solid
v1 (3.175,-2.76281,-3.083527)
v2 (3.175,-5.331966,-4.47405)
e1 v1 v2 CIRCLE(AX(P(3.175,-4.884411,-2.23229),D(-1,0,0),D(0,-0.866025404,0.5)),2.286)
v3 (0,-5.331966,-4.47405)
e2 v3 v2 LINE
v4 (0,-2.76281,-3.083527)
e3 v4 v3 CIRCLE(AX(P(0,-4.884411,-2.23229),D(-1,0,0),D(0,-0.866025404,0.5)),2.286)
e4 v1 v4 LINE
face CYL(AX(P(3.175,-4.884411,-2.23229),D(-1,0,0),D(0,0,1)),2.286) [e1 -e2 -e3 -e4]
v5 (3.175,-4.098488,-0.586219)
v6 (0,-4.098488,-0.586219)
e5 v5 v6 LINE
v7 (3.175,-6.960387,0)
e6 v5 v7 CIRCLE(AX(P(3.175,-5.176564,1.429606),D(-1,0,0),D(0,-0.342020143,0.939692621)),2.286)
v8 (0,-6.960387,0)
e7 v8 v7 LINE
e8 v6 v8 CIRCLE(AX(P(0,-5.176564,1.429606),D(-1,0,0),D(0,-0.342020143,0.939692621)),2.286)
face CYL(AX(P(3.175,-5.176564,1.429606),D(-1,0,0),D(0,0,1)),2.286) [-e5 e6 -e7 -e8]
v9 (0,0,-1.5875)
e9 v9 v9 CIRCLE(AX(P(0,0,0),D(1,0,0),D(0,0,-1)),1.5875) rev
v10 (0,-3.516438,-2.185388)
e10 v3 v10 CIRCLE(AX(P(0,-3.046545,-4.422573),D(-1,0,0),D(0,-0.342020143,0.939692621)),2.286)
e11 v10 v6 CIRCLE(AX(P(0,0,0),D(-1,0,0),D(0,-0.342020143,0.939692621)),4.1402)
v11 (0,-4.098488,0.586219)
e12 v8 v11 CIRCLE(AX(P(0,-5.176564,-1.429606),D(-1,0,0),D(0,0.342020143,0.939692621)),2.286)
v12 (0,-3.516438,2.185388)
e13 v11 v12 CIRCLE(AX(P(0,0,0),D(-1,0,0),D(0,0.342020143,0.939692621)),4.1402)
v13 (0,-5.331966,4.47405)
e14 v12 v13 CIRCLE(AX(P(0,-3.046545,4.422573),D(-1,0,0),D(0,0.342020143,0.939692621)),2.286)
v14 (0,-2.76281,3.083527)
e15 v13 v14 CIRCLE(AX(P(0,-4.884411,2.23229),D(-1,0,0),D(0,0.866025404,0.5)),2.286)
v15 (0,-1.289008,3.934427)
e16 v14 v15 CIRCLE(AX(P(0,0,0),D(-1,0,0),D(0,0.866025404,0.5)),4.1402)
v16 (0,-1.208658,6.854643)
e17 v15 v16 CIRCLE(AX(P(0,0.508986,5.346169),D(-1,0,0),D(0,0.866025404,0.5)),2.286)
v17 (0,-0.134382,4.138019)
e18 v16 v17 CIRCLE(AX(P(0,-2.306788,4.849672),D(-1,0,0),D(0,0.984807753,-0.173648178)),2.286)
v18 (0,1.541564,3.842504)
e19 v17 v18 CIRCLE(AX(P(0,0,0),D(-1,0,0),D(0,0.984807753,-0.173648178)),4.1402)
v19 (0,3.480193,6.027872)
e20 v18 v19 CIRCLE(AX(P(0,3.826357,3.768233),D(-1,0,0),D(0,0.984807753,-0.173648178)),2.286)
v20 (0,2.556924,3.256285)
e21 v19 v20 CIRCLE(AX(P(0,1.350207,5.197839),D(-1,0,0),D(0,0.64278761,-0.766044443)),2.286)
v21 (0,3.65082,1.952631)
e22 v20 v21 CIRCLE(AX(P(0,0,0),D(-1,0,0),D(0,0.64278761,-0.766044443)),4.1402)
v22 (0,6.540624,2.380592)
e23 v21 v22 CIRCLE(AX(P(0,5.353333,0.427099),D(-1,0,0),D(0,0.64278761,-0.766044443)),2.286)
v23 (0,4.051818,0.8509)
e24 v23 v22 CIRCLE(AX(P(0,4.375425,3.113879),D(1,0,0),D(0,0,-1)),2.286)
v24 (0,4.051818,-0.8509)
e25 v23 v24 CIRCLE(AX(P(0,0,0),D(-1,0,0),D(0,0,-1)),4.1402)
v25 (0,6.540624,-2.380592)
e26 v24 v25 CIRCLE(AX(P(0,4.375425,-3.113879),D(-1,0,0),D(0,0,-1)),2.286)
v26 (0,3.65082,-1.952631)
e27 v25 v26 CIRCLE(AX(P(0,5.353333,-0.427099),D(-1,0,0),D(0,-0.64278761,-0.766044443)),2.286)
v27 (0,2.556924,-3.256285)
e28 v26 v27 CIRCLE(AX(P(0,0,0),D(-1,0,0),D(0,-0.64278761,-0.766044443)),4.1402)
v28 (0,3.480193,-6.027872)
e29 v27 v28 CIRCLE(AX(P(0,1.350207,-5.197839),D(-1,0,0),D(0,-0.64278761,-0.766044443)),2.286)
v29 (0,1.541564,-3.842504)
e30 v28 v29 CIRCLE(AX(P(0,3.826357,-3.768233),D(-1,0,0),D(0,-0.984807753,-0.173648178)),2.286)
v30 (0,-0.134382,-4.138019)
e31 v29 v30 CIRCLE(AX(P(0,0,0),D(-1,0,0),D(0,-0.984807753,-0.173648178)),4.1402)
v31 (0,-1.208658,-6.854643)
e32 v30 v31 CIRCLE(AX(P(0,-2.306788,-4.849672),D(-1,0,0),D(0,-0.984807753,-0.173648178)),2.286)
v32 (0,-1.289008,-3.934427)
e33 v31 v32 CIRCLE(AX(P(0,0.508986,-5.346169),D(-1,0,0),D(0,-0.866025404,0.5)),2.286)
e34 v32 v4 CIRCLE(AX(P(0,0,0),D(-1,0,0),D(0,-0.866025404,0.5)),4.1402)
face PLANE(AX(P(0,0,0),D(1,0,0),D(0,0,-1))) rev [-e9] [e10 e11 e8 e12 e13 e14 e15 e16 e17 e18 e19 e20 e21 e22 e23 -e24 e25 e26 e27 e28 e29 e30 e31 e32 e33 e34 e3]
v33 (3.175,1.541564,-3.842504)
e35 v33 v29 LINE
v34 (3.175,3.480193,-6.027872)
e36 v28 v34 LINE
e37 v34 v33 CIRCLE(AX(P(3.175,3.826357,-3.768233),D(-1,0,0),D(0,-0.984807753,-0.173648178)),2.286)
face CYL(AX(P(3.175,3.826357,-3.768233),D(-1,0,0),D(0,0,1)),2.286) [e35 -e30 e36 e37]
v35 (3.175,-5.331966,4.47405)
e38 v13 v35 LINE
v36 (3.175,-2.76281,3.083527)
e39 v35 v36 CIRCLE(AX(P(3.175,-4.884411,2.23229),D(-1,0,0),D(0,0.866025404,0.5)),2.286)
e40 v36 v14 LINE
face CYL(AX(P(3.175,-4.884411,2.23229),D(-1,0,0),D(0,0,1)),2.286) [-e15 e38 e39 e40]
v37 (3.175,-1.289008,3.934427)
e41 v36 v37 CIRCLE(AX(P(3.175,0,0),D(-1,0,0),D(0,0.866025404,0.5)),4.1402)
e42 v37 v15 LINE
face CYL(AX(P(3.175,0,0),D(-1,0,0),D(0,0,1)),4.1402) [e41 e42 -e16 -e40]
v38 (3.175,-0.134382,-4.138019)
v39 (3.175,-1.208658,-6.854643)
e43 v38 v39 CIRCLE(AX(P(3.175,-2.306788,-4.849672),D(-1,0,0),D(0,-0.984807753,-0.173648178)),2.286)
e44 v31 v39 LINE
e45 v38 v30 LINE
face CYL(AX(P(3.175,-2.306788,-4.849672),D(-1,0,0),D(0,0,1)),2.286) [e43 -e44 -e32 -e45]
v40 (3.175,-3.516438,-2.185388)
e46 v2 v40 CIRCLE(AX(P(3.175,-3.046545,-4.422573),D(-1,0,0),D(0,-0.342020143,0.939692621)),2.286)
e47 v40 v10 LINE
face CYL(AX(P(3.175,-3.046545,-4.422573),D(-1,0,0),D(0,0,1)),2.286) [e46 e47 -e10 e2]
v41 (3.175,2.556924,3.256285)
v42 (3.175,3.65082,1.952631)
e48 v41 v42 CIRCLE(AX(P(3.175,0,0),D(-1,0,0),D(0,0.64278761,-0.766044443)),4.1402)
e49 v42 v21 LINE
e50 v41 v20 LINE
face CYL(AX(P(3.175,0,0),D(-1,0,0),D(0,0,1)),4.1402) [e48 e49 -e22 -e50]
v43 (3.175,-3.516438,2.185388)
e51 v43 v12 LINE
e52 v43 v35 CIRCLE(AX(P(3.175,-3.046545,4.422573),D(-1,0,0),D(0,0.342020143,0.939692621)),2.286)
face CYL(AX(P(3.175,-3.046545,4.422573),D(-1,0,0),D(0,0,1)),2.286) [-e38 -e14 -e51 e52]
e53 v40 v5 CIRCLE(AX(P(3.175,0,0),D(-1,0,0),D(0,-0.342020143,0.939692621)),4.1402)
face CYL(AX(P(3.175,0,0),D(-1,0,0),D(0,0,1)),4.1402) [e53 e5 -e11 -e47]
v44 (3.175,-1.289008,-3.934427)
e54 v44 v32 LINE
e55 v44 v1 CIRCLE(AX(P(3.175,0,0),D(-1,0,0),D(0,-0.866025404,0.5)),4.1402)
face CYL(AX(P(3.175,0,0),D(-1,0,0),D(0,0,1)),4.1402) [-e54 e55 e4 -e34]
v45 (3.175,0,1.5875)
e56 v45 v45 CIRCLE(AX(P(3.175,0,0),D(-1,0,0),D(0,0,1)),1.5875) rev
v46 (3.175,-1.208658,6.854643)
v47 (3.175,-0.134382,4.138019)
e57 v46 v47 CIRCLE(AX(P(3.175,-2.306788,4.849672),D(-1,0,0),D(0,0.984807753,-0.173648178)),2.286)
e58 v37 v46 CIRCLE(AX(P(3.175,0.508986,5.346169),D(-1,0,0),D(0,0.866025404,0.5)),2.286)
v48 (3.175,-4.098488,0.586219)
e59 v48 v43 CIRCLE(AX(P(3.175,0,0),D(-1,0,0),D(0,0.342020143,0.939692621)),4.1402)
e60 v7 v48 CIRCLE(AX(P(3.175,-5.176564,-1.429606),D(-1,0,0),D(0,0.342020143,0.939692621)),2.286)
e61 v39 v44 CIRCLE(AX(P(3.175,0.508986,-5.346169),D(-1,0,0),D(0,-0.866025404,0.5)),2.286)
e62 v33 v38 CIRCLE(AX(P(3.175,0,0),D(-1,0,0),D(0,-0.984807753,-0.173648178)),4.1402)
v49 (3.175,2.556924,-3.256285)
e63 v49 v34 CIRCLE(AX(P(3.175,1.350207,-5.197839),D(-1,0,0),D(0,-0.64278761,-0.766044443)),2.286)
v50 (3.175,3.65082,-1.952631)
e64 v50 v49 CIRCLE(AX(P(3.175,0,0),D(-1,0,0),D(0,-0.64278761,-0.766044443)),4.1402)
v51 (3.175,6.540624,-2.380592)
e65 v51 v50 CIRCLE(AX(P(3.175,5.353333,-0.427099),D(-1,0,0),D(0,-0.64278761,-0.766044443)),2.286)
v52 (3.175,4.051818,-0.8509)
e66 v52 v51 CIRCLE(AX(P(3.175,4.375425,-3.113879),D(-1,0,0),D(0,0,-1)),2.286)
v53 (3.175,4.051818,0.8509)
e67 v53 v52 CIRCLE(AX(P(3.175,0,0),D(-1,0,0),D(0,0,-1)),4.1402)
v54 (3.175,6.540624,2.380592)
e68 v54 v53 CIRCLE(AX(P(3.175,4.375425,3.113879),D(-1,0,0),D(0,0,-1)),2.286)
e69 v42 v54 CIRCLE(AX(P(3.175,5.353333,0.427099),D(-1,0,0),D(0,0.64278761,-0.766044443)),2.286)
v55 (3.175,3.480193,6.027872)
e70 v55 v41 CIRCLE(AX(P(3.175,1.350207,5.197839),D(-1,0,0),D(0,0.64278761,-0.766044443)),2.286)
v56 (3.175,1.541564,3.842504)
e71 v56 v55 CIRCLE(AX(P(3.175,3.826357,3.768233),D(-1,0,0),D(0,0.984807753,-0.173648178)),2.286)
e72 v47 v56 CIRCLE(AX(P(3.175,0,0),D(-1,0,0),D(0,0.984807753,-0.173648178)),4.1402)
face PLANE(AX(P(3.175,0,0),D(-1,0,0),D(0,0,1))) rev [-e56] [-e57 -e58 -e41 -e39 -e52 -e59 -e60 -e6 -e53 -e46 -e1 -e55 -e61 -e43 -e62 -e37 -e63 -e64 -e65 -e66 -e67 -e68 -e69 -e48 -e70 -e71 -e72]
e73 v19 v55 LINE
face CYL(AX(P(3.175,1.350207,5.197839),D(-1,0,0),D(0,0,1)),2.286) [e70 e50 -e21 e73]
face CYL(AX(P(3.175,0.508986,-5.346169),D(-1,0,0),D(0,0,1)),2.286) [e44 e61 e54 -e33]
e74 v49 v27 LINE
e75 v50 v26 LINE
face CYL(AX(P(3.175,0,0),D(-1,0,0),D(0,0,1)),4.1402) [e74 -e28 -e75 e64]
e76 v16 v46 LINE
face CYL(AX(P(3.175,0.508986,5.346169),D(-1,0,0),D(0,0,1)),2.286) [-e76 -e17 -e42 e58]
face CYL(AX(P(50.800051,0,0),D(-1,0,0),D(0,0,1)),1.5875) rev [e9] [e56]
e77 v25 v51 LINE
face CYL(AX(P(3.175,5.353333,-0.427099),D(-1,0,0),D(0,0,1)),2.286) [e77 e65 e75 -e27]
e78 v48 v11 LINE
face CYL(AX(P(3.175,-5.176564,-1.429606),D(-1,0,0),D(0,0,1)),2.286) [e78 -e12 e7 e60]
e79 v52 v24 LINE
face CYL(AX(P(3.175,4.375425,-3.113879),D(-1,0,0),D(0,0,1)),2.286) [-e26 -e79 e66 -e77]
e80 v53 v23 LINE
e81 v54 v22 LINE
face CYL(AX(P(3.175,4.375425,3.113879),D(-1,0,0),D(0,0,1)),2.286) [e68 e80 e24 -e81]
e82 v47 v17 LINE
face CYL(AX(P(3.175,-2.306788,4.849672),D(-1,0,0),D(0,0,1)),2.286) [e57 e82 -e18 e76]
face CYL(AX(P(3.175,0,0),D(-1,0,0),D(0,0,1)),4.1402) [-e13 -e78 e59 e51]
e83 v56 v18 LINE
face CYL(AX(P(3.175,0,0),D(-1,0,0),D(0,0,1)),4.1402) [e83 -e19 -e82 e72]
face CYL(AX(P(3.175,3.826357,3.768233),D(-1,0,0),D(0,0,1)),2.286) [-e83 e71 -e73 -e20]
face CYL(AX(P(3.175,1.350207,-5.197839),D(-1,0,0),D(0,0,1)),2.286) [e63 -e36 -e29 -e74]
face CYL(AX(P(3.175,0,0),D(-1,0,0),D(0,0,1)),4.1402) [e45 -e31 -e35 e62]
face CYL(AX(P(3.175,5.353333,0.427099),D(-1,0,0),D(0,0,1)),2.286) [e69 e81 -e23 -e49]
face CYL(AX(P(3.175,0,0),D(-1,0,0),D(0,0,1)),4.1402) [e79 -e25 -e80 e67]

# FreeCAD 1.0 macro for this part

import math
import FreeCAD as App
import Part
import Sketcher

V = App.Vector
Q = App.Units.Quantity


def add_polygon(sketch, points):
    """Adds a closed chain of lines whose ends are joined by coincident constraints."""
    first, n = sketch.GeometryCount, len(points)
    for a, b in zip(points, points[1:] + points[:1]):
        sketch.addGeometry(Part.LineSegment(App.Vector(*a, 0), App.Vector(*b, 0)), False)
    for i in range(n):
        sketch.addConstraint(Sketcher.Constraint("Coincident", first + i, 2, first + (i + 1) % n, 1))

doc = App.newDocument("Part")
body = doc.addObject("PartDesign::Body", "Body")

# Sketch on XZ plane
sketch1 = doc.addObject("Sketcher::SketchObject", "Sketch")
body.addObject(sketch1)
sketch1.AttachmentSupport = (doc.XZ_Plane, [""])
sketch1.MapMode = "FlatFace"
add_polygon(sketch1, [(0, -7), (0, 0), (3.2, 0), (3.2, -7)])  # lines 0-3
sketch1.addConstraint([
    Sketcher.Constraint("Vertical", 0),
    Sketcher.Constraint("Horizontal", 1),
    Sketcher.Constraint("Vertical", 2),
    Sketcher.Constraint("Horizontal", 3),
    Sketcher.Constraint("Coincident", 0, 2, -1, 1),
    Sketcher.Constraint("DistanceX", 1, 1, 1, 2, Q("0.125 in")),
    Sketcher.Constraint("DistanceY", 0, 1, 0, 2, Q("0.275 in")),
])
revolution = doc.addObject("PartDesign::Revolution", "Revolution")
body.addObject(revolution)
revolution.Profile = sketch1
revolution.ReferenceAxis = (sketch1, ["H_Axis"])
revolution.Angle = 360

# Sketch on YZ plane
sketch2 = doc.addObject("Sketcher::SketchObject", "Sketch001")
body.addObject(sketch2)
sketch2.AttachmentSupport = (doc.YZ_Plane, [""])
sketch2.MapMode = "FlatFace"
sketch2.addGeometry([
    Part.ArcOfCircle(Part.Circle(V(0, 0, 0), V(0, 0, 1), 4.1), math.radians(-12), math.radians(12)),
    Part.ArcOfCircle(Part.Circle(V(4.4, -3.1, 0), V(0, 0, 1), 2.3), math.radians(17), math.radians(98)),
    Part.ArcOfCircle(Part.Circle(V(0, 0, 0), V(0, 0, 1), 7), math.radians(-21), math.radians(21)),
    Part.ArcOfCircle(Part.Circle(V(4.4, 3.1, 0), V(0, 0, 1), 2.3), math.radians(-98), math.radians(-17)),
], False)
sketch2.addConstraint([
    Sketcher.Constraint("Coincident", 0, 1, 1, 2),
    Sketcher.Constraint("Coincident", 1, 1, 2, 1),
    Sketcher.Constraint("Coincident", 2, 2, 3, 2),
    Sketcher.Constraint("Coincident", 3, 1, 0, 2),
    Sketcher.Constraint("Coincident", 0, 3, -1, 1),
    Sketcher.Constraint("Coincident", 2, 3, -1, 1),
    Sketcher.Constraint("Equal", 1, 3),
    Sketcher.Constraint("Symmetric", 1, 3, 3, 3, -1),
    Sketcher.Constraint("Radius", 1, Q("0.09 in")),
    Sketcher.Constraint("Radius", 0, Q("0.163 in")),
    Sketcher.Constraint("Radius", 2, Q("0.276 in")),
    Sketcher.Constraint("DistanceY", 0, 1, 3, 1, Q("0.067 in")),
    Sketcher.Constraint("DistanceY", 1, 3, -1, 1, Q("3.113879 mm")),
])
pocket1 = doc.addObject("PartDesign::Pocket", "Pocket")
body.addObject(pocket1)
pocket1.Profile = sketch2
pocket1.Type = "ThroughAll"
pocket1.Reversed = True
doc.recompute()

polarpattern = doc.addObject("PartDesign::PolarPattern", "PolarPattern")
body.addObject(polarpattern)
polarpattern.Originals = [pocket1]
polarpattern.Axis = (doc.X_Axis, [""])
polarpattern.Angle = 360
polarpattern.Occurrences = 9
body.Tip = polarpattern

# Sketch on YZ plane
sketch3 = doc.addObject("Sketcher::SketchObject", "Sketch002")
body.addObject(sketch3)
sketch3.AttachmentSupport = (doc.YZ_Plane, [""])
sketch3.MapMode = "FlatFace"
sketch3.addGeometry(Part.Circle(V(0, 0, 0), V(0, 0, 1), 1.6), False)
sketch3.addConstraint([
    Sketcher.Constraint("Coincident", 0, 3, -1, 1),
    Sketcher.Constraint("Diameter", 0, Q("0.125 in")),
])
pocket2 = doc.addObject("PartDesign::Pocket", "Pocket001")
body.addObject(pocket2)
pocket2.Profile = sketch3
pocket2.Length = 101.600102
pocket2.Midplane = True

doc.recompute()
